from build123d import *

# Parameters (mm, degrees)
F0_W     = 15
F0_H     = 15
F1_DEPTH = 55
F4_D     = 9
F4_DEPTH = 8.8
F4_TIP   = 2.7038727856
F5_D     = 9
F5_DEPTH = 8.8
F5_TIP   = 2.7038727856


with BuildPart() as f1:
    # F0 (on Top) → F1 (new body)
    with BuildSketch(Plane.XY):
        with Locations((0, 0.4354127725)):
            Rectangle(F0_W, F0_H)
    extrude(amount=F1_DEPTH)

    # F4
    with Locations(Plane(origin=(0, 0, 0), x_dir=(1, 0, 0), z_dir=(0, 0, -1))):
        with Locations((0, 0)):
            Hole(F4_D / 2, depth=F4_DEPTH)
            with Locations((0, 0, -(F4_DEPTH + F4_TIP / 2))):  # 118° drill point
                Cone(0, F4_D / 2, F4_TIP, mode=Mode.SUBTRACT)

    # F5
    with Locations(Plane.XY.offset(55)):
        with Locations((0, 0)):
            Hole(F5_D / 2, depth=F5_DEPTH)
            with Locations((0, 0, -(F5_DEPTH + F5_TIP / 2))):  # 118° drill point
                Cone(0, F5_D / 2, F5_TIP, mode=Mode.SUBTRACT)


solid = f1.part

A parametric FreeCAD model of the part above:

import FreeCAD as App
import Part
import Sketcher


def add_polygon(sketch, points):
    """Adds a closed chain of lines whose ends are joined by coincident constraints."""
    first, n = sketch.GeometryCount, len(points)
    for a, b in zip(points, points[1:] + points[:1]):
        sketch.addGeometry(Part.LineSegment(App.Vector(*a, 0), App.Vector(*b, 0)), False)
    for i in range(n):
        sketch.addConstraint(Sketcher.Constraint("Coincident", first + i, 2, first + (i + 1) % n, 1))

doc = App.newDocument("Part")
params = doc.addObject("Spreadsheet::Sheet", "Params")
for row, (alias, value) in enumerate([
    ("sketch1_width", "15 mm"),
    ("pad1_length", "55 mm"),
    ("sketch2_diameter", "9 mm"),
    ("hole_diameter", "9 mm"),
    ("hole_depth", "8.8 mm"),
    ("sketch3_diameter", "9 mm"),
    ("hole2_diameter", "9 mm"),
    ("hole2_depth", "8.8 mm"),
], start=1):
    params.set(f"A{row}", alias)
    params.set(f"B{row}", "=" + value)
    params.setAlias(f"B{row}", alias)

body = doc.addObject("PartDesign::Body", "Body")

sketch1 = body.newObject("Sketcher::SketchObject", "Sketch")
sketch1.AttachmentSupport = (doc.getObject("XY_Plane"), [""])
sketch1.MapMode = "FlatFace"
add_polygon(sketch1, [(-8, 8), (-8, -7), (8, -7), (8, 8)])
sketch1.addConstraint([
    Sketcher.Constraint("Vertical", 0),
    Sketcher.Constraint("Horizontal", 1),
    Sketcher.Constraint("Vertical", 2),
    Sketcher.Constraint("Horizontal", 3),
    Sketcher.Constraint("Equal", 3, 0),
    Sketcher.Constraint("DistanceX", 1, 1, 1, 2, 15.0),
    Sketcher.Constraint("DistanceX", 0, 2, -1, 1, 7.5),
    Sketcher.Constraint("DistanceY", 0, 2, -1, 1, 7.064587),
])
sketch1.setExpression("Constraints[9]", "Params.sketch1_width")
pad1 = body.newObject("PartDesign::Pad", "Pad")
pad1.Profile = sketch1
pad1.setExpression("Length", "Params.pad1_length")

sketch2 = body.newObject("Sketcher::SketchObject", "Sketch001")
sketch2.AttachmentSupport = (doc.getObject("XY_Plane"), [""])
sketch2.MapMode = "FlatFace"
sketch2.addGeometry(Part.Circle(App.Vector(0, 0, 0), App.Vector(0, 0, 1), 4.5), False)
sketch2.addConstraint([
    Sketcher.Constraint("Coincident", 0, 3, -1, 1),
    Sketcher.Constraint("Diameter", 0, 9.0),
])
sketch2.setExpression("Constraints[1]", "Params.sketch2_diameter")
doc.recompute()
hole = body.newObject("PartDesign::Hole", "Hole")
hole.Profile = sketch2
hole.ThreadType = "None"
hole.setExpression("Diameter", "Params.hole_diameter")
hole.DepthType = "Dimension"
hole.setExpression("Depth", "Params.hole_depth")
hole.DrillPoint = "Angled"
hole.DrillPointAngle = 118
hole.Reversed = True

sketch3 = body.newObject("Sketcher::SketchObject", "Sketch002")
sketch3.AttachmentSupport = (doc.getObject("XY_Plane"), [""])
sketch3.MapMode = "FlatFace"
sketch3.AttachmentOffset = App.Placement(App.Vector(0, 0, 55), App.Rotation())
sketch3.addGeometry(Part.Circle(App.Vector(0, 0, 0), App.Vector(0, 0, 1), 4.5), False)
sketch3.addConstraint([
    Sketcher.Constraint("Coincident", 0, 3, -1, 1),
    Sketcher.Constraint("Diameter", 0, 9.0),
])
sketch3.setExpression("Constraints[1]", "Params.sketch3_diameter")
doc.recompute()
hole2 = body.newObject("PartDesign::Hole", "Hole001")
hole2.Profile = sketch3
hole2.ThreadType = "None"
hole2.setExpression("Diameter", "Params.hole2_diameter")
hole2.DepthType = "Dimension"
hole2.setExpression("Depth", "Params.hole2_depth")
hole2.DrillPoint = "Angled"
hole2.DrillPointAngle = 118

doc.recompute()
